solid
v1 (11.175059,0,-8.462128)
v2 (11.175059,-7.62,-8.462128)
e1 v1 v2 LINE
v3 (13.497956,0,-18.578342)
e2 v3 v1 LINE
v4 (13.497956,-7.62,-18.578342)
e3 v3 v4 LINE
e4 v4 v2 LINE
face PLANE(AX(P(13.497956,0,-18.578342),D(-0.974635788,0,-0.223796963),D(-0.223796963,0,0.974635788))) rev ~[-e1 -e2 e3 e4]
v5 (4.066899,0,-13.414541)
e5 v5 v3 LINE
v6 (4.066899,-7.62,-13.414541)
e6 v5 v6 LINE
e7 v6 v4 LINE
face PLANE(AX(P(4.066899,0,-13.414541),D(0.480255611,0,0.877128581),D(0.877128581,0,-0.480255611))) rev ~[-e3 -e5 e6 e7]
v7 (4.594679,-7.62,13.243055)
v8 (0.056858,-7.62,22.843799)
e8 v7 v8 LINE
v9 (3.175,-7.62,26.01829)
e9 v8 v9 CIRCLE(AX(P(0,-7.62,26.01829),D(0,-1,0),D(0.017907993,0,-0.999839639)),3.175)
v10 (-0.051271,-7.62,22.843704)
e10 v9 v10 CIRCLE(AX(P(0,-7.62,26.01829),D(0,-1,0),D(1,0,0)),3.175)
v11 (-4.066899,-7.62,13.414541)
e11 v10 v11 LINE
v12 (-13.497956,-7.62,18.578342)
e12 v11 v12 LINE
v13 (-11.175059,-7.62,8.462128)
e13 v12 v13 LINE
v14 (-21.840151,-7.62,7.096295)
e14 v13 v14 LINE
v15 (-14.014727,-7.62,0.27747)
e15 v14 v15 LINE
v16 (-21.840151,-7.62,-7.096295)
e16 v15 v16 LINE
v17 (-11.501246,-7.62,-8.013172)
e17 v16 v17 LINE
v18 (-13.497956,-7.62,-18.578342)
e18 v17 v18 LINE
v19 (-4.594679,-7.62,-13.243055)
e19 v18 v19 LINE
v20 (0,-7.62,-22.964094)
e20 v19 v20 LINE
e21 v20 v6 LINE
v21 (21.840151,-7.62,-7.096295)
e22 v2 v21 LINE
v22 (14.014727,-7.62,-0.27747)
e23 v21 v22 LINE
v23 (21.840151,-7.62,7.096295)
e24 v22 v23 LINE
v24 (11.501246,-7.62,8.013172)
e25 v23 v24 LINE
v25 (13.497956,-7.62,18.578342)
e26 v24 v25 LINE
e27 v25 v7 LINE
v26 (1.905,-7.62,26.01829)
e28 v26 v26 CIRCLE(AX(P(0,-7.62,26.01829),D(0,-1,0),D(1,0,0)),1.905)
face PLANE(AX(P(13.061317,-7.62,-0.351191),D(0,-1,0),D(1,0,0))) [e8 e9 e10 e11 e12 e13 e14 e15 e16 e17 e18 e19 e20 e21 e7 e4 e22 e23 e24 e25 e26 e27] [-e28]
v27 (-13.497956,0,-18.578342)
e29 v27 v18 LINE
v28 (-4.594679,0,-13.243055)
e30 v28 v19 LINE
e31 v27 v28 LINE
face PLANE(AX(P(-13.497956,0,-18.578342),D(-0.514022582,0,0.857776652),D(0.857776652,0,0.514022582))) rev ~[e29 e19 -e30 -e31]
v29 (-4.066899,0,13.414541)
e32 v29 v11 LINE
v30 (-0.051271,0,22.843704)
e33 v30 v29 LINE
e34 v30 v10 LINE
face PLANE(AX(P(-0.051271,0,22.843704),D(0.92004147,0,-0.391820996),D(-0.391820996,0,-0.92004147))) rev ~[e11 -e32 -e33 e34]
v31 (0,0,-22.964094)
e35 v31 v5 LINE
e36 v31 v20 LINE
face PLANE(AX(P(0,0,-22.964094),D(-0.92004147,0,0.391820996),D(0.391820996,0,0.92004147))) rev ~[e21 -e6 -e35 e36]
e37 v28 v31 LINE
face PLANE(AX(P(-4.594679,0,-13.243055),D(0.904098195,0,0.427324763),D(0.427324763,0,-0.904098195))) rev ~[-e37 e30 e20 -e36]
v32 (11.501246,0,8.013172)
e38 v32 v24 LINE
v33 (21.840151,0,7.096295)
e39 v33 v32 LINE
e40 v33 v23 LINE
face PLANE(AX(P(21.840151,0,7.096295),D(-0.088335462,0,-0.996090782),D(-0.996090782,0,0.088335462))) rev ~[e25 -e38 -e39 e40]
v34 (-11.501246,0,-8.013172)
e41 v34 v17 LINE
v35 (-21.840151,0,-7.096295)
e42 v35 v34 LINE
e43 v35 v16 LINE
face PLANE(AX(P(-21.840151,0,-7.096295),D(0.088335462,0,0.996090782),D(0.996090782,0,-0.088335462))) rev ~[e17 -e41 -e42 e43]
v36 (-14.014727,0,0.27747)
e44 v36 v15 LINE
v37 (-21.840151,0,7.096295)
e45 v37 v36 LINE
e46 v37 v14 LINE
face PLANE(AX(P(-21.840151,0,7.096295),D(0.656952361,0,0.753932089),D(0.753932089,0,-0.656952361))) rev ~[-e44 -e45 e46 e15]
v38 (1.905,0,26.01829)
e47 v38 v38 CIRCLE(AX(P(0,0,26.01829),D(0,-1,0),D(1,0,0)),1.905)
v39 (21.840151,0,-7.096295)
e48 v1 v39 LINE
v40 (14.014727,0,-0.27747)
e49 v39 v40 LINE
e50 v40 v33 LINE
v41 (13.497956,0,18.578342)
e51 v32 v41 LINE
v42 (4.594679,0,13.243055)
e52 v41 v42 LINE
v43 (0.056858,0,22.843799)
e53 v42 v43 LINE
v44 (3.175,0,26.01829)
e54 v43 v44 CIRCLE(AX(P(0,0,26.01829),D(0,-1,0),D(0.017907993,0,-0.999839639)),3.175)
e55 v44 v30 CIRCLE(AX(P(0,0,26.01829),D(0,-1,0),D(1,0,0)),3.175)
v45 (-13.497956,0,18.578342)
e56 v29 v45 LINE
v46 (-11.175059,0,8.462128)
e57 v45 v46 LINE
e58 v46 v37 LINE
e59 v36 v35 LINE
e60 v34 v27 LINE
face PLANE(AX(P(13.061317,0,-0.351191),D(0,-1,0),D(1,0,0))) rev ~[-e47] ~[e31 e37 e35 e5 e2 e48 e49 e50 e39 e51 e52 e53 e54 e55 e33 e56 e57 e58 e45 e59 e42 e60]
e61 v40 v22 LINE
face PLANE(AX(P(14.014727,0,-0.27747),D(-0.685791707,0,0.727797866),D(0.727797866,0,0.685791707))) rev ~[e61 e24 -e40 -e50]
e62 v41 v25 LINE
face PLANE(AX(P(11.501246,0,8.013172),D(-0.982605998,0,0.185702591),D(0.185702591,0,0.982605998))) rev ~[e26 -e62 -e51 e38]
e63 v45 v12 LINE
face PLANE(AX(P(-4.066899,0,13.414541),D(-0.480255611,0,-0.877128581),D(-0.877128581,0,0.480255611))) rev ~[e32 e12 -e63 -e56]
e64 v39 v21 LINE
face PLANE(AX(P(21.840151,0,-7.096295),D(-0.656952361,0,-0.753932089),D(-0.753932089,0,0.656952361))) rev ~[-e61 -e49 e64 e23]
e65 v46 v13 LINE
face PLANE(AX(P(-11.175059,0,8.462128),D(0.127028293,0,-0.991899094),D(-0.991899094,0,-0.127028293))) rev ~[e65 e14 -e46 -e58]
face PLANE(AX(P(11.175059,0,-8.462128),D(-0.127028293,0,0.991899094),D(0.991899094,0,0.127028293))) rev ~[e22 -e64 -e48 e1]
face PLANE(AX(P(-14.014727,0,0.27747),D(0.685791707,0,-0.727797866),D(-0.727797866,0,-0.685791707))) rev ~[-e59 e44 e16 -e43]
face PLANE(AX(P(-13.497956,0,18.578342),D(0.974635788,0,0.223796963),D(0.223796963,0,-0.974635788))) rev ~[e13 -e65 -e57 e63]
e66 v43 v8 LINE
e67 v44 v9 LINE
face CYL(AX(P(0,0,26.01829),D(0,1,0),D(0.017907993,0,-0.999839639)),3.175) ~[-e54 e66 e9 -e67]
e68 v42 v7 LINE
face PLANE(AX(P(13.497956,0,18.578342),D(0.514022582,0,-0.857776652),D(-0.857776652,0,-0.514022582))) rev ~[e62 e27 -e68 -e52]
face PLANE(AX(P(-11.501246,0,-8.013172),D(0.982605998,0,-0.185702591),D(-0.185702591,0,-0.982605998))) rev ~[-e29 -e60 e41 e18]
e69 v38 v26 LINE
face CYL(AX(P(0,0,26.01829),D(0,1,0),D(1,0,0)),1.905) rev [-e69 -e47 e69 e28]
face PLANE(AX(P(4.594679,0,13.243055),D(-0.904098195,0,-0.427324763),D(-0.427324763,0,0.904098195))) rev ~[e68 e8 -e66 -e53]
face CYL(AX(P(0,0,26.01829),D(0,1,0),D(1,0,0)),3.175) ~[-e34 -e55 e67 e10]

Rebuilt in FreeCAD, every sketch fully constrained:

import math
import FreeCAD as App
import Part
import Sketcher

V = App.Vector
Q = App.Units.Quantity

doc = App.newDocument("Part")
body = doc.addObject("PartDesign::Body", "Body")

sketch1 = doc.addObject("Sketcher::SketchObject", "Sketch")
body.addObject(sketch1)
sketch1.AttachmentSupport = (doc.XZ_Plane, [""])
sketch1.MapMode = "FlatFace"
sketch1.addGeometry([
    Part.LineSegment(V(-21.8, 7.1, 0), V(-14, 0.3, 0)),
    Part.LineSegment(V(-14, 0.3, 0), V(-21.8, -7.1, 0)),
    Part.LineSegment(V(-21.8, -7.1, 0), V(-11.5, -8, 0)),
    Part.LineSegment(V(-11.5, -8, 0), V(-13.5, -18.6, 0)),
    Part.LineSegment(V(-13.5, -18.6, 0), V(-4.6, -13.2, 0)),
    Part.LineSegment(V(-4.6, -13.2, 0), V(0, -23, 0)),
    Part.LineSegment(V(0, -23, 0), V(4.1, -13.4, 0)),
    Part.LineSegment(V(4.1, -13.4, 0), V(13.5, -18.6, 0)),
    Part.LineSegment(V(13.5, -18.6, 0), V(11.2, -8.5, 0)),
    Part.LineSegment(V(11.2, -8.5, 0), V(21.8, -7.1, 0)),
    Part.LineSegment(V(21.8, -7.1, 0), V(14, -0.3, 0)),
    Part.LineSegment(V(14, -0.3, 0), V(21.8, 7.1, 0)),
    Part.LineSegment(V(21.8, 7.1, 0), V(11.5, 8, 0)),
    Part.LineSegment(V(11.5, 8, 0), V(13.5, 18.6, 0)),
    Part.LineSegment(V(13.5, 18.6, 0), V(4.6, 13.2, 0)),
    Part.LineSegment(V(4.6, 13.2, 0), V(0.1, 22.8, 0)),
    Part.ArcOfCircle(Part.Circle(V(0, 26, 0), V(0, 0, 1), 3.2), math.radians(-89), math.radians(0)),
    Part.ArcOfCircle(Part.Circle(V(0, 26, 0), V(0, 0, 1), 3.2), math.radians(0), math.radians(269)),
    Part.LineSegment(V(-0.1, 22.8, 0), V(-4.1, 13.4, 0)),
    Part.LineSegment(V(-4.1, 13.4, 0), V(-13.5, 18.6, 0)),
    Part.LineSegment(V(-13.5, 18.6, 0), V(-11.2, 8.5, 0)),
    Part.LineSegment(V(-11.2, 8.5, 0), V(-21.8, 7.1, 0)),
    Part.Circle(V(0, 26, 0), V(0, 0, 1), 1.9),
], False)
sketch1.addConstraint([
    Sketcher.Constraint("Coincident", 0, 2, 1, 1),
    Sketcher.Constraint("Coincident", 1, 2, 2, 1),
    Sketcher.Constraint("Coincident", 2, 2, 3, 1),
    Sketcher.Constraint("Coincident", 3, 2, 4, 1),
    Sketcher.Constraint("Coincident", 4, 2, 5, 1),
    Sketcher.Constraint("Coincident", 5, 2, 6, 1),
    Sketcher.Constraint("Coincident", 6, 2, 7, 1),
    Sketcher.Constraint("Coincident", 7, 2, 8, 1),
    Sketcher.Constraint("Coincident", 8, 2, 9, 1),
    Sketcher.Constraint("Coincident", 9, 2, 10, 1),
    Sketcher.Constraint("Coincident", 10, 2, 11, 1),
    Sketcher.Constraint("Coincident", 11, 2, 12, 1),
    Sketcher.Constraint("Coincident", 12, 2, 13, 1),
    Sketcher.Constraint("Coincident", 13, 2, 14, 1),
    Sketcher.Constraint("Coincident", 14, 2, 15, 1),
    Sketcher.Constraint("Coincident", 15, 2, 16, 1),
    Sketcher.Constraint("Tangent", 16, 2, 17, 1),
    Sketcher.Constraint("Coincident", 17, 2, 18, 1),
    Sketcher.Constraint("Coincident", 18, 2, 19, 1),
    Sketcher.Constraint("Coincident", 19, 2, 20, 1),
    Sketcher.Constraint("Coincident", 20, 2, 21, 1),
    Sketcher.Constraint("Coincident", 21, 2, 0, 1),
    Sketcher.Constraint("Coincident", 22, 3, 16, 3),
    Sketcher.Constraint("Equal", 16, 17),
    Sketcher.Constraint("Symmetric", 0, 2, 10, 2, -1, 1),
    Sketcher.Constraint("Symmetric", 1, 2, 11, 2, -1, 1),
    Sketcher.Constraint("Symmetric", 2, 2, 12, 2, -1, 1),
    Sketcher.Constraint("Symmetric", 3, 2, 13, 2, -1, 1),
    Sketcher.Constraint("Symmetric", 4, 2, 14, 2, -1, 1),
    Sketcher.Constraint("Symmetric", 6, 2, 18, 2, -1, 1),
    Sketcher.Constraint("Symmetric", 7, 2, 19, 2, -1, 1),
    Sketcher.Constraint("Symmetric", 8, 2, 20, 2, -1, 1),
    Sketcher.Constraint("Symmetric", 9, 2, 21, 2, -1, 1),
    Sketcher.Constraint("Symmetric", 3, 2, 7, 2, -2),
    Sketcher.Constraint("Symmetric", 1, 2, 9, 2, -2),
    Sketcher.Constraint("PointOnObject", 16, 3, -2),
    Sketcher.Constraint("PointOnObject", 5, 2, -2),
    Sketcher.Constraint("Parallel", 5, 15),
    Sketcher.Constraint("Parallel", 6, 18),
    Sketcher.Constraint("Horizontal", 22, 3, 16, 2),
    Sketcher.Constraint("Equal", 0, 2),
    Sketcher.Constraint("Equal", 1, 3),
    Sketcher.Constraint("Equal", 2, 4),
    Sketcher.Constraint("Equal", 3, 5),
    Sketcher.Constraint("Equal", 4, 6),
    Sketcher.Constraint("Equal", 5, 7),
    Sketcher.Constraint("Equal", 6, 8),
    Sketcher.Constraint("Equal", 7, 9),
    Sketcher.Constraint("Diameter", 22, Q("0.15 in")),
    Sketcher.Constraint("Radius", 16, Q("0.125 in")),
    Sketcher.Constraint("DistanceX", -1, 1, 6, 2, 4.066899),
    Sketcher.Constraint("DistanceY", -1, 1, 15, 2, 22.843799),
    Sketcher.Constraint("DistanceY", 5, 2, 1, 2, 15.867799),
    Sketcher.Constraint("DistanceY", 3, 2, 6, 2, 5.163802),
    Sketcher.Constraint("DistanceX", 2, 2, 7, 2, 24.999201),
    Sketcher.Constraint("DistanceY", 8, 2, 12, 2, 16.4753),
    Sketcher.Constraint("DistanceX", 15, 2, 13, 2, 13.441098),
    Sketcher.Constraint("Distance", 0, 10.379482),
])
pad1 = doc.addObject("PartDesign::Pad", "Pad")
body.addObject(pad1)
pad1.Profile = sketch1
pad1.Length = Q("0.3 in")

doc.recompute()
